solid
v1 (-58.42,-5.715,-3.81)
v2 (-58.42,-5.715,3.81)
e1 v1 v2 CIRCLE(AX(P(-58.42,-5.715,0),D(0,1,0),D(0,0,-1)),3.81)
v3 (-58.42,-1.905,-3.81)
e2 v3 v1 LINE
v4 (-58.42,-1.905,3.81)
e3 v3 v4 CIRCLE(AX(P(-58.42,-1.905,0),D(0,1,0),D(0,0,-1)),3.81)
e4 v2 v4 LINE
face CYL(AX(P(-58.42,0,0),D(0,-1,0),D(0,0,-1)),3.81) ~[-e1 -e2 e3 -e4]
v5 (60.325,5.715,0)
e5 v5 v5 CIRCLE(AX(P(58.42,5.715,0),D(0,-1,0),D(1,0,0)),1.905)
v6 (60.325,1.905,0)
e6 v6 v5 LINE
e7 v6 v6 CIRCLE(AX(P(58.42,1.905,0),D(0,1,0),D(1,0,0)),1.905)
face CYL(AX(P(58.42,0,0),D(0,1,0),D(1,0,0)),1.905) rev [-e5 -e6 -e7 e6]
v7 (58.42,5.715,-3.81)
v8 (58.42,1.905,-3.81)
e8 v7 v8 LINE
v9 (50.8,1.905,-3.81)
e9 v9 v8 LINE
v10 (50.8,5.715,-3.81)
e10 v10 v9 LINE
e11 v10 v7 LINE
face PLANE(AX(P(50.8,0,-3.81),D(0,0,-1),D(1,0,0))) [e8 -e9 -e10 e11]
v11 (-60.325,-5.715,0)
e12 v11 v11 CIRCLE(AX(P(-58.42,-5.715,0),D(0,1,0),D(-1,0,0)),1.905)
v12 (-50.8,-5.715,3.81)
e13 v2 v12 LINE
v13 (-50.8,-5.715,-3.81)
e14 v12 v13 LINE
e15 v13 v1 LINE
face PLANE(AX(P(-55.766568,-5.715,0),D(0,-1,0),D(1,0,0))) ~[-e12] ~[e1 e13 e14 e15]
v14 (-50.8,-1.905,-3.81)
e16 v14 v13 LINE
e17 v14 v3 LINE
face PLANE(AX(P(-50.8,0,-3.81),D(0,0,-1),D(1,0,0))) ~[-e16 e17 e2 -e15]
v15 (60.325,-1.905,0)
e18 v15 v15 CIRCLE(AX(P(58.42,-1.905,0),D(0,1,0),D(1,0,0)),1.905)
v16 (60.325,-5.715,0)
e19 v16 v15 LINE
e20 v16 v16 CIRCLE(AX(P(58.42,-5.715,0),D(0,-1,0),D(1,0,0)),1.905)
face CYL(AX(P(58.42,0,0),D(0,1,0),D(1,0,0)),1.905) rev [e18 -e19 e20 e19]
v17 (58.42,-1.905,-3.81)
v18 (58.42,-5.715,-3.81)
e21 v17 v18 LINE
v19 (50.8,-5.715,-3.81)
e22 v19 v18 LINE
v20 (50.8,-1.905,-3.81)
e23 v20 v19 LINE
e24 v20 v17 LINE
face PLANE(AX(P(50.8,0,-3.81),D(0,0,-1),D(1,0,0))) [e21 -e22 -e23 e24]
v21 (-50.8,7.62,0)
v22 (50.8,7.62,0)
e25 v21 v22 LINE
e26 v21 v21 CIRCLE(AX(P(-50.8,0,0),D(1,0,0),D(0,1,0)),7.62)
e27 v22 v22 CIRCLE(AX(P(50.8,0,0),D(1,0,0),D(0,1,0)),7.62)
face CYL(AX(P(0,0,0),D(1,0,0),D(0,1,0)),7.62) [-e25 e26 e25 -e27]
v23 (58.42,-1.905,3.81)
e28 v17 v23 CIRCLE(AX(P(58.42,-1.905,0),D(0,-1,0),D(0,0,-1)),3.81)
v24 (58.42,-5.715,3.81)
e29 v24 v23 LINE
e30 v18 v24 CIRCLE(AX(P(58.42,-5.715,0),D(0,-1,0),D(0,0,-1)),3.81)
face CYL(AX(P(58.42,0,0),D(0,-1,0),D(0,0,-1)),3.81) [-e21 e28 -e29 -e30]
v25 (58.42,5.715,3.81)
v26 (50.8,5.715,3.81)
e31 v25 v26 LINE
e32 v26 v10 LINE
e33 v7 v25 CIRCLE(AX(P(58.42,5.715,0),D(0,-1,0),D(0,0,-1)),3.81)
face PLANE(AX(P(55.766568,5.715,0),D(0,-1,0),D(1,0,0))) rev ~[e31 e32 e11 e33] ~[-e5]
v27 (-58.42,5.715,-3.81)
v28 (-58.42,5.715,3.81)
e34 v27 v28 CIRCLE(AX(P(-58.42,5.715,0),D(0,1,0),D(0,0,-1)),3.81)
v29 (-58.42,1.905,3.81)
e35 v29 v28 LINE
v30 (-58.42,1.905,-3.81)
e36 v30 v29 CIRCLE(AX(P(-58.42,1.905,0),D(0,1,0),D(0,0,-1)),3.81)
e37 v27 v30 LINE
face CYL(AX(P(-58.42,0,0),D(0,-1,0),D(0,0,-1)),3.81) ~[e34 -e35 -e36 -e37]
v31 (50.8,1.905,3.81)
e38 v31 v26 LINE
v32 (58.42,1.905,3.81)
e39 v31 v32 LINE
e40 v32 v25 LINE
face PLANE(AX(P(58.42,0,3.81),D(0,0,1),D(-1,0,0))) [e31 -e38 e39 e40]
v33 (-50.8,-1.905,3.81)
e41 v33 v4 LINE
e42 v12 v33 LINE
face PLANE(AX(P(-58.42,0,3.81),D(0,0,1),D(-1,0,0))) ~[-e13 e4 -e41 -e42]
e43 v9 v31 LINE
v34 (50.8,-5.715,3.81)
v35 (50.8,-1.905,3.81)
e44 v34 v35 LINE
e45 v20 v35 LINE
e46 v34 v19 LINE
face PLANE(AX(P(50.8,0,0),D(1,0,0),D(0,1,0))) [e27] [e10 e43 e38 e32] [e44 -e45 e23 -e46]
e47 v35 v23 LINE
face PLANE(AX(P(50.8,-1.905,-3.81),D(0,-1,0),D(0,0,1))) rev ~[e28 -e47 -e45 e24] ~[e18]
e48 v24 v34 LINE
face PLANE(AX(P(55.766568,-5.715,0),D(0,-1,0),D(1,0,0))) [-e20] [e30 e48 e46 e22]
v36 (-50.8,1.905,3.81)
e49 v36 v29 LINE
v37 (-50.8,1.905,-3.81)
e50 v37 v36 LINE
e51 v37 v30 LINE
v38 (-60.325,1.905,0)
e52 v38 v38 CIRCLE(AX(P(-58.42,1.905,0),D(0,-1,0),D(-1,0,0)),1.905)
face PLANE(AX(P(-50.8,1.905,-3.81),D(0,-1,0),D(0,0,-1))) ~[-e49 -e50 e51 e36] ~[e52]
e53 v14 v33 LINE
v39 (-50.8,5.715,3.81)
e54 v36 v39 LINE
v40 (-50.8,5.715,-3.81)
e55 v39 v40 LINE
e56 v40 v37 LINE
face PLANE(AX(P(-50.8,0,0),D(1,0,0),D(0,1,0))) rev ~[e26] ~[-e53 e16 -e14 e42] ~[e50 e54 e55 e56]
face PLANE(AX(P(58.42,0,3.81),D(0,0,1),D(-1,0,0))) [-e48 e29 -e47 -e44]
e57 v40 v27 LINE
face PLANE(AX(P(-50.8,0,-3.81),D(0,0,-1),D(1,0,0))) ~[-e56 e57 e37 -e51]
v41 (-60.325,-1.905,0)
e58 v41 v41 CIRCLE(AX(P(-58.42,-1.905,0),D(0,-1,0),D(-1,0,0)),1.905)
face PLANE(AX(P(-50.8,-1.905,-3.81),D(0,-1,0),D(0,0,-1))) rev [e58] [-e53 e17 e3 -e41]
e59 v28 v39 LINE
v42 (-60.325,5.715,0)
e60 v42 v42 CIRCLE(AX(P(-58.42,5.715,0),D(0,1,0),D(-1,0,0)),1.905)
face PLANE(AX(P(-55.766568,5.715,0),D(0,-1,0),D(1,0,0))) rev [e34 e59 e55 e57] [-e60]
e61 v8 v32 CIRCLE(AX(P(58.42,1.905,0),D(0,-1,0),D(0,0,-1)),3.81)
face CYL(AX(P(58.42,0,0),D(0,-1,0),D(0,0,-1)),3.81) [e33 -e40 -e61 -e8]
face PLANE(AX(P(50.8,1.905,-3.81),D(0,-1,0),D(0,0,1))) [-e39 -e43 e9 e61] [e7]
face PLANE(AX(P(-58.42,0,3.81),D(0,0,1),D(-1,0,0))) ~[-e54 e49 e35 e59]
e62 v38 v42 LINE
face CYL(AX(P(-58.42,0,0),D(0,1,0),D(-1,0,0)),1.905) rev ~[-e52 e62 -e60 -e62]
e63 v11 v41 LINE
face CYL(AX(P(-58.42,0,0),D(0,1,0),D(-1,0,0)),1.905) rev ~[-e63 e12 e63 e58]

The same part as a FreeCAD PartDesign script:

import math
import FreeCAD as App
import Part
import Sketcher
from FreeCAD import Vector
Q = App.Units.Quantity


def add_polygon(sketch, points):
    """Adds a closed chain of lines whose ends are joined by coincident constraints."""
    first, n = sketch.GeometryCount, len(points)
    for a, b in zip(points, points[1:] + points[:1]):
        sketch.addGeometry(Part.LineSegment(App.Vector(*a, 0), App.Vector(*b, 0)), False)
    for i in range(n):
        sketch.addConstraint(Sketcher.Constraint("Coincident", first + i, 2, first + (i + 1) % n, 1))

doc = App.newDocument("Part")
body = doc.addObject("PartDesign::Body", "Body")

# Sketch on YZ plane
sketch1 = body.newObject("Sketcher::SketchObject", "Sketch")
sketch1.AttachmentSupport = (doc.getObject("YZ_Plane"), [""])
sketch1.MapMode = "FlatFace"
sketch1.addGeometry(Part.Circle(Vector(0, 0, 0), Vector(0, 0, 1), 7.62), False)
sketch1.addConstraint(Sketcher.Constraint("Coincident", 0, 3, -1, 1))
sketch1.addConstraint(Sketcher.Constraint("Diameter", 0, Q("0.6 in")))
pad1 = body.newObject("PartDesign::Pad", "Pad")
pad1.Profile = sketch1
pad1.Length = Q("4 in")
pad1.Midplane = True

# Sketch on XZ plane
sketch2 = body.newObject("Sketcher::SketchObject", "Sketch001")
sketch2.AttachmentSupport = (doc.getObject("XZ_Plane"), [""])
sketch2.MapMode = "FlatFace"
sketch2.addGeometry(Part.LineSegment(Vector(50.8, 3.81, 0), Vector(50.8, -3.81, 0)), False)
sketch2.addGeometry(Part.LineSegment(Vector(50.8, -3.81, 0), Vector(58.42, -3.81, 0)), False)
sketch2.addGeometry(Part.ArcOfCircle(Part.Circle(Vector(58.42, 0, 0), Vector(0, 0, 1), 3.81), math.radians(-90), math.radians(90)), False)
sketch2.addGeometry(Part.LineSegment(Vector(58.42, 3.81, 0), Vector(50.8, 3.81, 0)), False)
sketch2.addGeometry(Part.Circle(Vector(58.42, 0, 0), Vector(0, 0, 1), 1.905), False)
sketch2.addConstraint(Sketcher.Constraint("Coincident", 0, 2, 1, 1))
sketch2.addConstraint(Sketcher.Constraint("Tangent", 1, 2, 2, 1))
sketch2.addConstraint(Sketcher.Constraint("Tangent", 2, 2, 3, 1))
sketch2.addConstraint(Sketcher.Constraint("Coincident", 3, 2, 0, 1))
sketch2.addConstraint(Sketcher.Constraint("Vertical", 0))
sketch2.addConstraint(Sketcher.Constraint("Horizontal", 1))
sketch2.addConstraint(Sketcher.Constraint("Horizontal", 3))
sketch2.addConstraint(Sketcher.Constraint("Coincident", 4, 3, 2, 3))
sketch2.addConstraint(Sketcher.Constraint("PointOnObject", 2, 3, -1))
sketch2.addConstraint(Sketcher.Constraint("Equal", 3, 0))
sketch2.addConstraint(Sketcher.Constraint("Diameter", 4, Q("0.15 in")))
sketch2.addConstraint(Sketcher.Constraint("Radius", 2, Q("0.15 in")))
sketch2.addConstraint(Sketcher.Constraint("DistanceX", -1, 1, 0, 2, Q("2 in")))
pad2 = body.newObject("PartDesign::Pad", "Pad001")
pad2.Profile = sketch2
pad2.Length = Q("0.45 in")
pad2.Midplane = True

# Sketch on YZ plane
sketch3 = body.newObject("Sketcher::SketchObject", "Sketch002")
sketch3.AttachmentSupport = (doc.getObject("YZ_Plane"), [""])
sketch3.MapMode = "FlatFace"
sketch3.AttachmentOffset = App.Placement(Vector(0, 0, 2 * 25.4), App.Rotation())
add_polygon(sketch3, [(-1.905, 3.81), (-1.905, -3.81), (1.905, -3.81), (1.905, 3.81)])  # lines 0-3
sketch3.addConstraint(Sketcher.Constraint("Vertical", 0))
sketch3.addConstraint(Sketcher.Constraint("Horizontal", 1))
sketch3.addConstraint(Sketcher.Constraint("Vertical", 2))
sketch3.addConstraint(Sketcher.Constraint("Horizontal", 3))
sketch3.addConstraint(Sketcher.Constraint("Symmetric", 0, 2, 2, 2, -1, 1))
sketch3.addConstraint(Sketcher.Constraint("DistanceY", 0, 2, 0, 1, Q("0.3 in")))
sketch3.addConstraint(Sketcher.Constraint("DistanceX", 1, 1, 1, 2, Q("0.15 in")))
pocket1 = body.newObject("PartDesign::Pocket", "Pocket")
pocket1.Profile = sketch3
pocket1.Type = "ThroughAll"
pocket1.Reversed = True
body2 = doc.addObject("PartDesign::Body", "Body001")
doc.recompute()

body2.BaseFeature = body
doc.recompute()

mirroring = doc.addObject("Part::Mirroring", "Mirroring")
mirroring.Source = body
mirroring.Base = Vector(0, 0, 0)
mirroring.Normal = Vector(1, 0, 0)
body3 = doc.addObject("PartDesign::Body", "Body002")
body3.BaseFeature = mirroring
boolean = body2.newObject("PartDesign::Boolean", "Boolean")
boolean.Type = "Fuse"
boolean.addObjects([body3])
doc.recompute()
mirroring.Visibility = False

doc.recompute()
